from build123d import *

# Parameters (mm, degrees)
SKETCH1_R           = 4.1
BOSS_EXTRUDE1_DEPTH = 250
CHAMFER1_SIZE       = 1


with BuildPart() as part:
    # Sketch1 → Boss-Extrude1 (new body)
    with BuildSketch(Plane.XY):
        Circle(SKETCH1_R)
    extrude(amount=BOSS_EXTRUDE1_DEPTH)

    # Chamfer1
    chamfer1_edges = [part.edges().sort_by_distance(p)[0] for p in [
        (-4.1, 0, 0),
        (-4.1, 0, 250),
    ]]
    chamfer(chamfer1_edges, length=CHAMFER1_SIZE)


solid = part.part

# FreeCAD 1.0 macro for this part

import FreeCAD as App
import Part
import Sketcher


def edges_at(feature, points):
    """Names of the edges that pass closest to the given points."""
    edges = feature.Shape.Edges
    near = lambda p: min(range(len(edges)), key=lambda i: edges[i].distToShape(Part.Vertex(*p))[0])
    return sorted({f"Edge{near(p) + 1}" for p in points})

doc = App.newDocument("Part")
body = doc.addObject("PartDesign::Body", "Body")

# Sketch on XY plane
sketch1 = doc.addObject("Sketcher::SketchObject", "Sketch")
body.addObject(sketch1)
sketch1.AttachmentSupport = (doc.XY_Plane, [""])
sketch1.MapMode = "FlatFace"
sketch1.addGeometry(Part.Circle(App.Vector(0, 0, 0), App.Vector(0, 0, 1), 4.1), False)
sketch1.addConstraint([
    Sketcher.Constraint("Coincident", 0, 3, -1, 1),
    Sketcher.Constraint("Diameter", 0, 8.2),
])
pad1 = doc.addObject("PartDesign::Pad", "Pad")
body.addObject(pad1)
pad1.Profile = sketch1
pad1.Length = 250
doc.recompute()

chamfer = doc.addObject("PartDesign::Chamfer", "Chamfer")
body.addObject(chamfer)
chamfer.Base = (pad1, edges_at(pad1, [(-4.1, 0, 0), (-4.1, 0, 250)]))
chamfer.Size = 1

doc.recompute()
